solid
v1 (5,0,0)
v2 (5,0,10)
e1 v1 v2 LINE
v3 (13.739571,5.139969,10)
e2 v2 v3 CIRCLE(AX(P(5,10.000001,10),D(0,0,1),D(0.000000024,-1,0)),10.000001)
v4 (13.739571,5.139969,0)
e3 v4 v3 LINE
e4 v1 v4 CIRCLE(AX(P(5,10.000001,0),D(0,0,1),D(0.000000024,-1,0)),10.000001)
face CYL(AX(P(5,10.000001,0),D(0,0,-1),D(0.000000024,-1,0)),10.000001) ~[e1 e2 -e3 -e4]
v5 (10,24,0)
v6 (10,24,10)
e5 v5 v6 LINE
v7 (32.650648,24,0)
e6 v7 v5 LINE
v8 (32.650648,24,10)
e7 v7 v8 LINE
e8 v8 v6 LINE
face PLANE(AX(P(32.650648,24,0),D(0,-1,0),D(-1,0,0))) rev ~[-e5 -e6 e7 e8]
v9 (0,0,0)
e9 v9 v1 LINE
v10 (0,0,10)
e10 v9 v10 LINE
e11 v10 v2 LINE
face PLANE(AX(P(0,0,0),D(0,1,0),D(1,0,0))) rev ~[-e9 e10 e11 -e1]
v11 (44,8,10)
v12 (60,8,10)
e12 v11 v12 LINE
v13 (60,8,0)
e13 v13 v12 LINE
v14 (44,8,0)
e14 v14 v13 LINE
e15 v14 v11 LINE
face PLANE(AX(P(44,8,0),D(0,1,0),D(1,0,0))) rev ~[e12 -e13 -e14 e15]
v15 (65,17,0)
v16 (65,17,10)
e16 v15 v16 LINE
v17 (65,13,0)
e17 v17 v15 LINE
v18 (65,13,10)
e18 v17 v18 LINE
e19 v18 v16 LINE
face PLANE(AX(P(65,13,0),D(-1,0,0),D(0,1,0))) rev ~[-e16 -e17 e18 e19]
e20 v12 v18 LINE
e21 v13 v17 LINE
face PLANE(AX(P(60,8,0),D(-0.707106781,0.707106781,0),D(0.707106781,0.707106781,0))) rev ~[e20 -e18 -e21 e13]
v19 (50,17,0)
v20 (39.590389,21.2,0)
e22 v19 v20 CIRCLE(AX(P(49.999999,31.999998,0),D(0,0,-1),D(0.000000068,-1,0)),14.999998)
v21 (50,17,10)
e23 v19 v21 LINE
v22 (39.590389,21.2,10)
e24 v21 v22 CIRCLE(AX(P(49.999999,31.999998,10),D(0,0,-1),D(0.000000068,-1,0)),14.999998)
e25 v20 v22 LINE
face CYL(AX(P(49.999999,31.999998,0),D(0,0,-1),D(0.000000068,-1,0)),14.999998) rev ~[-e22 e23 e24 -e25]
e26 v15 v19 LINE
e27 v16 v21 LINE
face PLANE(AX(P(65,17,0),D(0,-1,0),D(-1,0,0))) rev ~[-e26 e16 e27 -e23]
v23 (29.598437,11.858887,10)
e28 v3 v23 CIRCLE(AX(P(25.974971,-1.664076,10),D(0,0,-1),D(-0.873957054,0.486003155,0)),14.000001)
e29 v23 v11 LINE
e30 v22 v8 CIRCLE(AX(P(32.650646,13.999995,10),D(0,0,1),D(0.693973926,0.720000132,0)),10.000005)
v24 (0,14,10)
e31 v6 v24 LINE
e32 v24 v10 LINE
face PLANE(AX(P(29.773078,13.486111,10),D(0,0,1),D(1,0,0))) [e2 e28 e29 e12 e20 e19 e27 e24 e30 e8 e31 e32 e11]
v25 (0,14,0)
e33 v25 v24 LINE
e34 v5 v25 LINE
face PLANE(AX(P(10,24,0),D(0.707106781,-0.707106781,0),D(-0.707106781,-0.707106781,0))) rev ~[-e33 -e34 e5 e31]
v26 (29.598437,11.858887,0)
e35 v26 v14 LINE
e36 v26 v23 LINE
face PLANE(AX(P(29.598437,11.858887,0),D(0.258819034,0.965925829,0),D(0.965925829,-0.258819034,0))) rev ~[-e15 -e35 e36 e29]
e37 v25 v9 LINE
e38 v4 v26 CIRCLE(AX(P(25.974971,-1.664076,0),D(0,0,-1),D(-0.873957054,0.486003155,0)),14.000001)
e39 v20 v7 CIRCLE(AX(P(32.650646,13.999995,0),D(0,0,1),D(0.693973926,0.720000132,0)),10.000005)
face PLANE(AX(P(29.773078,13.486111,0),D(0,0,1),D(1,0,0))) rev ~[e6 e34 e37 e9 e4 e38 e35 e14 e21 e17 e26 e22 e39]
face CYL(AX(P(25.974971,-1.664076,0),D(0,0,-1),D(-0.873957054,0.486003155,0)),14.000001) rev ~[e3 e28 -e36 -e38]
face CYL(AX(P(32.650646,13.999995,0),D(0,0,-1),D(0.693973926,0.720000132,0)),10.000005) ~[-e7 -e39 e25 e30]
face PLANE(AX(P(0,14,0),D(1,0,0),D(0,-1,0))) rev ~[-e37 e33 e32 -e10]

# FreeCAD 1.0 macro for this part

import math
import FreeCAD as App
import Part
import Sketcher
Q = App.Units.Quantity

doc = App.newDocument("Part")
body = doc.addObject("PartDesign::Body", "Body")

# Sketch on XY plane
sketch1 = body.newObject("Sketcher::SketchObject", "Sketch")
sketch1.AttachmentSupport = (doc.getObject("XY_Plane"), [""])
sketch1.MapMode = "FlatFace"
sketch1.addGeometry([
    Part.LineSegment(App.Vector(0, 14, 0), App.Vector(0, 0, 0)),  # 0
    Part.LineSegment(App.Vector(0, 0, 0), App.Vector(5, 0, 0)),  # 1
    Part.ArcOfCircle(Part.Circle(App.Vector(5, 10, 0), App.Vector(0, 0, 1), 10), math.radians(-90), math.radians(-29)),  # 2
    Part.ArcOfCircle(Part.Circle(App.Vector(26, -1.7, 0), App.Vector(0, 0, 1), 14), math.radians(75), math.radians(151)),  # 3
    Part.LineSegment(App.Vector(29.6, 11.9, 0), App.Vector(44, 8, 0)),  # 4
    Part.LineSegment(App.Vector(44, 8, 0), App.Vector(60, 8, 0)),  # 5
    Part.LineSegment(App.Vector(60, 8, 0), App.Vector(65, 13, 0)),  # 6
    Part.LineSegment(App.Vector(65, 13, 0), App.Vector(65, 17, 0)),  # 7
    Part.LineSegment(App.Vector(65, 17, 0), App.Vector(50, 17, 0)),  # 8
    Part.ArcOfCircle(Part.Circle(App.Vector(50, 32, 0), App.Vector(0, 0, 1), 15), math.radians(-134), math.radians(-90)),  # 9
    Part.ArcOfCircle(Part.Circle(App.Vector(32.7, 14, 0), App.Vector(0, 0, 1), 10), math.radians(46), math.radians(90)),  # 10
    Part.LineSegment(App.Vector(32.7, 24, 0), App.Vector(10, 24, 0)),  # 11
    Part.LineSegment(App.Vector(10, 24, 0), App.Vector(0, 14, 0)),  # 12
], False)
sketch1.addConstraint([
    Sketcher.Constraint("Coincident", 0, 2, 1, 1),
    Sketcher.Constraint("Tangent", 1, 2, 2, 1),
    Sketcher.Constraint("Tangent", 2, 2, 3, 2),
    Sketcher.Constraint("Tangent", 3, 1, 4, 1),
    Sketcher.Constraint("Coincident", 4, 2, 5, 1),
    Sketcher.Constraint("Coincident", 5, 2, 6, 1),
    Sketcher.Constraint("Coincident", 6, 2, 7, 1),
    Sketcher.Constraint("Coincident", 7, 2, 8, 1),
    Sketcher.Constraint("Tangent", 8, 2, 9, 2),
    Sketcher.Constraint("Tangent", 9, 1, 10, 1),
    Sketcher.Constraint("Tangent", 10, 2, 11, 1),
    Sketcher.Constraint("Coincident", 11, 2, 12, 1),
    Sketcher.Constraint("Coincident", 12, 2, 0, 1),
    Sketcher.Constraint("Vertical", 0),
    Sketcher.Constraint("Horizontal", 1),
    Sketcher.Constraint("Horizontal", 5),
    Sketcher.Constraint("Vertical", 7),
    Sketcher.Constraint("Horizontal", 8),
    Sketcher.Constraint("Horizontal", 11),
    Sketcher.Constraint("Coincident", 0, 2, -1, 1),
    Sketcher.Constraint("Parallel", 6, 12),
    Sketcher.Constraint("Radius", 2, 10.000001),
    Sketcher.Constraint("Radius", 3, 14.000001),
    Sketcher.Constraint("DistanceX", 1, 1, 1, 2, 5.0),
    Sketcher.Constraint("DistanceX", 5, 1, 5, 2, 16.0),
    Sketcher.Constraint("DistanceX", 8, 2, 8, 1, 15.0),
    Sketcher.Constraint("DistanceY", 0, 2, 0, 1, 14.0),
    Sketcher.Constraint("DistanceY", 7, 1, 7, 2, 4.0),
    Sketcher.Constraint("Angle", 4, Q("-14.999999 deg")),
    Sketcher.Constraint("Angle", 6, Q("45 deg")),
    Sketcher.Constraint("DistanceX", -1, 1, 9, 3, 49.999999),
    Sketcher.Constraint("DistanceX", -1, 1, 4, 2, 44.0),
    Sketcher.Constraint("DistanceY", -1, 1, 4, 2, 8.0),
    Sketcher.Constraint("DistanceY", -1, 1, 10, 2, 24.0),
    Sketcher.Constraint("DistanceY", -1, 1, 9, 1, 21.2),
    Sketcher.Constraint("Radius", 9, 14.999998),
])
pad1 = body.newObject("PartDesign::Pad", "Pad")
pad1.Profile = sketch1
pad1.Length = 10

doc.recompute()
